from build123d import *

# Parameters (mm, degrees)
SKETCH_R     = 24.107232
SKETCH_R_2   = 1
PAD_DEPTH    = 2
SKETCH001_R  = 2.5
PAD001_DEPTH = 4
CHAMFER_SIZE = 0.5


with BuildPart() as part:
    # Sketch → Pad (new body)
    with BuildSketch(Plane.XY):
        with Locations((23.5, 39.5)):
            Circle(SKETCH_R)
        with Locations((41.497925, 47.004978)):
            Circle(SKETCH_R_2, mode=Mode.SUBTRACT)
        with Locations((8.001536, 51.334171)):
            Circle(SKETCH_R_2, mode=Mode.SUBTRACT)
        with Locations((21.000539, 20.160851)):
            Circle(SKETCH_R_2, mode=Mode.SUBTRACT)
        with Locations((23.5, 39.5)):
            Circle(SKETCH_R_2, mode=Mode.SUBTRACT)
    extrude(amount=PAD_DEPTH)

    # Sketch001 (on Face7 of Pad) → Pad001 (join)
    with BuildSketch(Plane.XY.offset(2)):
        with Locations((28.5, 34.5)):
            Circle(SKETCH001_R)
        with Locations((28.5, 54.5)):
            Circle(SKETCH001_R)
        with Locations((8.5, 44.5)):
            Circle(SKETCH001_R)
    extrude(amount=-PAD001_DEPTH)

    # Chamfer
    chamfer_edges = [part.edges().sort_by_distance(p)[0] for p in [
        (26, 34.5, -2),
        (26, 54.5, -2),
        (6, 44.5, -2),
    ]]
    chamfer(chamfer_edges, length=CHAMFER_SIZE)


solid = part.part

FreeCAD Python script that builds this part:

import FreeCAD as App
import Part
import Sketcher

V = App.Vector


def edges_at(feature, points):
    """Names of the edges that pass closest to the given points."""
    edges = feature.Shape.Edges
    near = lambda p: min(range(len(edges)), key=lambda i: edges[i].distToShape(Part.Vertex(*p))[0])
    return sorted({f"Edge{near(p) + 1}" for p in points})

doc = App.newDocument("Part")
body = doc.addObject("PartDesign::Body", "Body")

sketch1 = body.newObject("Sketcher::SketchObject", "Sketch")
sketch1.AttachmentSupport = (doc.getObject("XY_Plane"), [""])
sketch1.MapMode = "FlatFace"
sketch1.addGeometry(Part.Circle(V(23.5, 39.5, 0), V(0, 0, 1), 24.1), False)
sketch1.addGeometry(Part.Circle(V(21, 20.2, 0), V(0, 0, 1), 1), False)
sketch1.addGeometry(Part.Circle(V(23.5, 39.5, 0), V(0, 0, 1), 1), False)
sketch1.addGeometry(Part.Circle(V(8, 51.3, 0), V(0, 0, 1), 1), False)
sketch1.addGeometry(Part.Circle(V(41.5, 47, 0), V(0, 0, 1), 1), False)
sketch1.addConstraint(Sketcher.Constraint("Coincident", 2, 3, 0, 3))
sketch1.addConstraint(Sketcher.Constraint("Equal", 1, 2))
sketch1.addConstraint(Sketcher.Constraint("Equal", 2, 3))
sketch1.addConstraint(Sketcher.Constraint("Equal", 3, 4))
sketch1.addConstraint(Sketcher.Constraint("Diameter", 1, 2.0))
sketch1.addConstraint(Sketcher.Constraint("DistanceX", -1, 1, 0, 3, 23.5))
sketch1.addConstraint(Sketcher.Constraint("DistanceY", -1, 1, 0, 3, 39.5))
sketch1.addConstraint(Sketcher.Constraint("Diameter", 0, 48.214464))
sketch1.addConstraint(Sketcher.Constraint("DistanceX", -1, 1, 1, 3, 21.000539))
sketch1.addConstraint(Sketcher.Constraint("DistanceY", -1, 1, 1, 3, 20.160851))
sketch1.addConstraint(Sketcher.Constraint("DistanceY", -1, 1, 3, 3, 51.334171))
sketch1.addConstraint(Sketcher.Constraint("DistanceY", 0, 3, 4, 3, 7.504978))
sketch1.addConstraint(Sketcher.Constraint("DistanceX", 3, 3, 4, 3, 33.496389))
sketch1.addConstraint(Sketcher.Constraint("DistanceX", -1, 1, 3, 3, 8.001536))
pad1 = body.newObject("PartDesign::Pad", "Pad")
pad1.Profile = sketch1
pad1.Length = 2

sketch2 = body.newObject("Sketcher::SketchObject", "Sketch001")
sketch2.AttachmentSupport = (doc.getObject("XY_Plane"), [""])
sketch2.MapMode = "FlatFace"
sketch2.AttachmentOffset = App.Placement(V(0, 0, 2), App.Rotation())
sketch2.addGeometry(Part.Circle(V(28.5, 34.5, 0), V(0, 0, 1), 2.5), False)
sketch2.addGeometry(Part.Circle(V(28.5, 54.5, 0), V(0, 0, 1), 2.5), False)
sketch2.addGeometry(Part.Circle(V(8.5, 44.5, 0), V(0, 0, 1), 2.5), False)
sketch2.addConstraint(Sketcher.Constraint("Equal", 0, 1))
sketch2.addConstraint(Sketcher.Constraint("Equal", 1, 2))
sketch2.addConstraint(Sketcher.Constraint("Vertical", 0, 3, 1, 3))
sketch2.addConstraint(Sketcher.Constraint("Diameter", 0, 5.0))
sketch2.addConstraint(Sketcher.Constraint("DistanceY", 0, 3, 1, 3, 20.0))
sketch2.addConstraint(Sketcher.Constraint("DistanceX", 2, 3, 0, 3, 20.0))
sketch2.addConstraint(Sketcher.Constraint("DistanceY", 0, 3, 2, 3, 10.0))
sketch2.addConstraint(Sketcher.Constraint("DistanceX", -1, 1, 0, 3, 28.5))
sketch2.addConstraint(Sketcher.Constraint("DistanceY", -1, 1, 0, 3, 34.5))
pad2 = body.newObject("PartDesign::Pad", "Pad001")
pad2.Profile = sketch2
pad2.Length = 4
pad2.Reversed = True
doc.recompute()

chamfer = body.newObject("PartDesign::Chamfer", "Chamfer")
chamfer.Base = (pad2, edges_at(pad2, [(26, 34.5, -2), (26, 54.5, -2), (6, 44.5, -2)]))
chamfer.Size = 0.5

doc.recompute()
